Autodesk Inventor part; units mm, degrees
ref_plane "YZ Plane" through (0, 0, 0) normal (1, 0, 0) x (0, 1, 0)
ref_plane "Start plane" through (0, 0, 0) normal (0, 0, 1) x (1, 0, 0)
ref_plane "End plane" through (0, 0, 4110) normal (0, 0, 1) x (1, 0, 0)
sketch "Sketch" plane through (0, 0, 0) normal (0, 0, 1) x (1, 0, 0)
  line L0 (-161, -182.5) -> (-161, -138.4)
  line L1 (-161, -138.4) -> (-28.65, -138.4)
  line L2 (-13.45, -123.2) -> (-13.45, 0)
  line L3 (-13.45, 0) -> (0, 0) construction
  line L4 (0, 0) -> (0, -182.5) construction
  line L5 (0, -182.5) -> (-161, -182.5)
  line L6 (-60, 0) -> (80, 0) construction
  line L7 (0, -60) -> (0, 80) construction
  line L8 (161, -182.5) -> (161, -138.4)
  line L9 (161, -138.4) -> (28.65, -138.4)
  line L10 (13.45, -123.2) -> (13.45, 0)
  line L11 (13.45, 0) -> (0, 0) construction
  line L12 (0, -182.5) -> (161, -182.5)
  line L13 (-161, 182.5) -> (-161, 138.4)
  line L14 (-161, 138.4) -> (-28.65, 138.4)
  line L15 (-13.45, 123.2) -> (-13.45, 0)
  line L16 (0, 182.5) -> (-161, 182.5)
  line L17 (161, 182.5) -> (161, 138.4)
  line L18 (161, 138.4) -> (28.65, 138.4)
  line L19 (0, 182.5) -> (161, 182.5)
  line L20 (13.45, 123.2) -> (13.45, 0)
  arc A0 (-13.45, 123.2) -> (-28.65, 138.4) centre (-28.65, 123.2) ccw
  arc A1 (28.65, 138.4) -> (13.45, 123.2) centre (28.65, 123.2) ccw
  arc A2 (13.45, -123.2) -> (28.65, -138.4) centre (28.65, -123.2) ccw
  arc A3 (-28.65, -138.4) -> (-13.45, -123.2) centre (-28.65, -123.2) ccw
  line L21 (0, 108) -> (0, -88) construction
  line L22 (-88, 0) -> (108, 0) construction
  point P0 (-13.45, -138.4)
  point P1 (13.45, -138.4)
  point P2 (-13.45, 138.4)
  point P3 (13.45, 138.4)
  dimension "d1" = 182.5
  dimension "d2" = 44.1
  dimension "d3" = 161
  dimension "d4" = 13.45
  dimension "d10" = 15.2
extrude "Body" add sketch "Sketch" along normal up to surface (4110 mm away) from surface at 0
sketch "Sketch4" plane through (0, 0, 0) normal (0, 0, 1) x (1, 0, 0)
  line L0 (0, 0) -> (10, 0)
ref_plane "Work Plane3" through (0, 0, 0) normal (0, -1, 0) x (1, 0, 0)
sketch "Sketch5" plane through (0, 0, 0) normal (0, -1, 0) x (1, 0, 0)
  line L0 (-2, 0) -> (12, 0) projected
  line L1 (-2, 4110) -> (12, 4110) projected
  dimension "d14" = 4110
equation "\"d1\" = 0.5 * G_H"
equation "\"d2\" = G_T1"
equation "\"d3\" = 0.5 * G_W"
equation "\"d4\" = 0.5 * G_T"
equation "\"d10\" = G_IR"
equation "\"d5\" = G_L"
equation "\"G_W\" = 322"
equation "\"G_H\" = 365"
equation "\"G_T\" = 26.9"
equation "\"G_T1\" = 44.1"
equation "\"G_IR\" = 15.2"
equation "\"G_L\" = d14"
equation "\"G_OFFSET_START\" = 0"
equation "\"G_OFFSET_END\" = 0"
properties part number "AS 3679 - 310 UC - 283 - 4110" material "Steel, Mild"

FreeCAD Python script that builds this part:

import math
import FreeCAD as App
import Part
import Sketcher
from FreeCAD import Vector
Q = App.Units.Quantity

doc = App.newDocument("Part")
body = doc.addObject("PartDesign::Body", "Body")

sketch1 = body.newObject("Sketcher::SketchObject", "Sketch")
sketch1.AttachmentSupport = (doc.getObject("XY_Plane"), [""])
sketch1.MapMode = "FlatFace"
sketch1.addGeometry(Part.LineSegment(Vector(-161, -138.4, 0), Vector(-161, -182.5, 0)), False)
sketch1.addGeometry(Part.LineSegment(Vector(-161, -182.5, 0), Vector(161, -182.5, 0)), False)
sketch1.addGeometry(Part.LineSegment(Vector(161, -182.5, 0), Vector(161, -138.4, 0)), False)
sketch1.addGeometry(Part.LineSegment(Vector(161, -138.4, 0), Vector(28.65, -138.4, 0)), False)
sketch1.addGeometry(Part.ArcOfCircle(Part.Circle(Vector(28.65, -123.2, 0), Vector(0, 0, 1), 15.2), math.radians(180), math.radians(270)), False)
sketch1.addGeometry(Part.LineSegment(Vector(13.45, -123.2, 0), Vector(13.45, 123.2, 0)), False)
sketch1.addGeometry(Part.ArcOfCircle(Part.Circle(Vector(28.65, 123.2, 0), Vector(0, 0, 1), 15.2), math.radians(90), math.radians(180)), False)
sketch1.addGeometry(Part.LineSegment(Vector(28.65, 138.4, 0), Vector(161, 138.4, 0)), False)
sketch1.addGeometry(Part.LineSegment(Vector(161, 138.4, 0), Vector(161, 182.5, 0)), False)
sketch1.addGeometry(Part.LineSegment(Vector(161, 182.5, 0), Vector(-161, 182.5, 0)), False)
sketch1.addGeometry(Part.LineSegment(Vector(-161, 182.5, 0), Vector(-161, 138.4, 0)), False)
sketch1.addGeometry(Part.LineSegment(Vector(-161, 138.4, 0), Vector(-28.65, 138.4, 0)), False)
sketch1.addGeometry(Part.ArcOfCircle(Part.Circle(Vector(-28.65, 123.2, 0), Vector(0, 0, 1), 15.2), math.radians(0), math.radians(90)), False)
sketch1.addGeometry(Part.LineSegment(Vector(-13.45, 123.2, 0), Vector(-13.45, -123.2, 0)), False)
sketch1.addGeometry(Part.ArcOfCircle(Part.Circle(Vector(-28.65, -123.2, 0), Vector(0, 0, 1), 15.2), math.radians(-90), math.radians(0)), False)
sketch1.addGeometry(Part.LineSegment(Vector(-28.65, -138.4, 0), Vector(-161, -138.4, 0)), False)
sketch1.addConstraint(Sketcher.Constraint("Coincident", 0, 2, 1, 1))
sketch1.addConstraint(Sketcher.Constraint("Coincident", 1, 2, 2, 1))
sketch1.addConstraint(Sketcher.Constraint("Coincident", 2, 2, 3, 1))
sketch1.addConstraint(Sketcher.Constraint("Tangent", 3, 2, 4, 2))
sketch1.addConstraint(Sketcher.Constraint("Tangent", 4, 1, 5, 1))
sketch1.addConstraint(Sketcher.Constraint("Tangent", 5, 2, 6, 2))
sketch1.addConstraint(Sketcher.Constraint("Tangent", 6, 1, 7, 1))
sketch1.addConstraint(Sketcher.Constraint("Coincident", 7, 2, 8, 1))
sketch1.addConstraint(Sketcher.Constraint("Coincident", 8, 2, 9, 1))
sketch1.addConstraint(Sketcher.Constraint("Coincident", 9, 2, 10, 1))
sketch1.addConstraint(Sketcher.Constraint("Coincident", 10, 2, 11, 1))
sketch1.addConstraint(Sketcher.Constraint("Tangent", 11, 2, 12, 2))
sketch1.addConstraint(Sketcher.Constraint("Tangent", 12, 1, 13, 1))
sketch1.addConstraint(Sketcher.Constraint("Tangent", 13, 2, 14, 2))
sketch1.addConstraint(Sketcher.Constraint("Tangent", 14, 1, 15, 1))
sketch1.addConstraint(Sketcher.Constraint("Coincident", 15, 2, 0, 1))
sketch1.addConstraint(Sketcher.Constraint("Vertical", 0))
sketch1.addConstraint(Sketcher.Constraint("Horizontal", 1))
sketch1.addConstraint(Sketcher.Constraint("Vertical", 2))
sketch1.addConstraint(Sketcher.Constraint("Horizontal", 3))
sketch1.addConstraint(Sketcher.Constraint("Vertical", 5))
sketch1.addConstraint(Sketcher.Constraint("Horizontal", 7))
sketch1.addConstraint(Sketcher.Constraint("Vertical", 8))
sketch1.addConstraint(Sketcher.Constraint("Horizontal", 9))
sketch1.addConstraint(Sketcher.Constraint("Vertical", 10))
sketch1.addConstraint(Sketcher.Constraint("Horizontal", 11))
sketch1.addConstraint(Sketcher.Constraint("Vertical", 13))
sketch1.addConstraint(Sketcher.Constraint("Horizontal", 15))
sketch1.addConstraint(Sketcher.Constraint("Equal", 4, 6))
sketch1.addConstraint(Sketcher.Constraint("Equal", 6, 12))
sketch1.addConstraint(Sketcher.Constraint("Equal", 12, 14))
sketch1.addConstraint(Sketcher.Constraint("Symmetric", 4, 3, 12, 3, -1, 1))
sketch1.addConstraint(Sketcher.Constraint("Symmetric", 0, 2, 8, 2, -1, 1))
sketch1.addConstraint(Sketcher.Constraint("Symmetric", 7, 2, 10, 2, -2))
sketch1.addConstraint(Sketcher.Constraint("Symmetric", 2, 2, 15, 2, -2))
sketch1.addConstraint(Sketcher.Constraint("Radius", 4, Q("15.2 mm")))
sketch1.addConstraint(Sketcher.Constraint("DistanceY", 0, 2, 0, 1, Q("44.1 mm")))
sketch1.addConstraint(Sketcher.Constraint("DistanceX", 0, 2, -1, 1, Q("161 mm")))
sketch1.addConstraint(Sketcher.Constraint("DistanceY", 0, 2, -1, 1, Q("182.5 mm")))
sketch1.addConstraint(Sketcher.Constraint("DistanceX", -1, 1, 4, 1, Q("13.45 mm")))
pad1 = body.newObject("PartDesign::Pad", "Pad")
pad1.Profile = sketch1
pad1.Length = 4110

doc.recompute()
